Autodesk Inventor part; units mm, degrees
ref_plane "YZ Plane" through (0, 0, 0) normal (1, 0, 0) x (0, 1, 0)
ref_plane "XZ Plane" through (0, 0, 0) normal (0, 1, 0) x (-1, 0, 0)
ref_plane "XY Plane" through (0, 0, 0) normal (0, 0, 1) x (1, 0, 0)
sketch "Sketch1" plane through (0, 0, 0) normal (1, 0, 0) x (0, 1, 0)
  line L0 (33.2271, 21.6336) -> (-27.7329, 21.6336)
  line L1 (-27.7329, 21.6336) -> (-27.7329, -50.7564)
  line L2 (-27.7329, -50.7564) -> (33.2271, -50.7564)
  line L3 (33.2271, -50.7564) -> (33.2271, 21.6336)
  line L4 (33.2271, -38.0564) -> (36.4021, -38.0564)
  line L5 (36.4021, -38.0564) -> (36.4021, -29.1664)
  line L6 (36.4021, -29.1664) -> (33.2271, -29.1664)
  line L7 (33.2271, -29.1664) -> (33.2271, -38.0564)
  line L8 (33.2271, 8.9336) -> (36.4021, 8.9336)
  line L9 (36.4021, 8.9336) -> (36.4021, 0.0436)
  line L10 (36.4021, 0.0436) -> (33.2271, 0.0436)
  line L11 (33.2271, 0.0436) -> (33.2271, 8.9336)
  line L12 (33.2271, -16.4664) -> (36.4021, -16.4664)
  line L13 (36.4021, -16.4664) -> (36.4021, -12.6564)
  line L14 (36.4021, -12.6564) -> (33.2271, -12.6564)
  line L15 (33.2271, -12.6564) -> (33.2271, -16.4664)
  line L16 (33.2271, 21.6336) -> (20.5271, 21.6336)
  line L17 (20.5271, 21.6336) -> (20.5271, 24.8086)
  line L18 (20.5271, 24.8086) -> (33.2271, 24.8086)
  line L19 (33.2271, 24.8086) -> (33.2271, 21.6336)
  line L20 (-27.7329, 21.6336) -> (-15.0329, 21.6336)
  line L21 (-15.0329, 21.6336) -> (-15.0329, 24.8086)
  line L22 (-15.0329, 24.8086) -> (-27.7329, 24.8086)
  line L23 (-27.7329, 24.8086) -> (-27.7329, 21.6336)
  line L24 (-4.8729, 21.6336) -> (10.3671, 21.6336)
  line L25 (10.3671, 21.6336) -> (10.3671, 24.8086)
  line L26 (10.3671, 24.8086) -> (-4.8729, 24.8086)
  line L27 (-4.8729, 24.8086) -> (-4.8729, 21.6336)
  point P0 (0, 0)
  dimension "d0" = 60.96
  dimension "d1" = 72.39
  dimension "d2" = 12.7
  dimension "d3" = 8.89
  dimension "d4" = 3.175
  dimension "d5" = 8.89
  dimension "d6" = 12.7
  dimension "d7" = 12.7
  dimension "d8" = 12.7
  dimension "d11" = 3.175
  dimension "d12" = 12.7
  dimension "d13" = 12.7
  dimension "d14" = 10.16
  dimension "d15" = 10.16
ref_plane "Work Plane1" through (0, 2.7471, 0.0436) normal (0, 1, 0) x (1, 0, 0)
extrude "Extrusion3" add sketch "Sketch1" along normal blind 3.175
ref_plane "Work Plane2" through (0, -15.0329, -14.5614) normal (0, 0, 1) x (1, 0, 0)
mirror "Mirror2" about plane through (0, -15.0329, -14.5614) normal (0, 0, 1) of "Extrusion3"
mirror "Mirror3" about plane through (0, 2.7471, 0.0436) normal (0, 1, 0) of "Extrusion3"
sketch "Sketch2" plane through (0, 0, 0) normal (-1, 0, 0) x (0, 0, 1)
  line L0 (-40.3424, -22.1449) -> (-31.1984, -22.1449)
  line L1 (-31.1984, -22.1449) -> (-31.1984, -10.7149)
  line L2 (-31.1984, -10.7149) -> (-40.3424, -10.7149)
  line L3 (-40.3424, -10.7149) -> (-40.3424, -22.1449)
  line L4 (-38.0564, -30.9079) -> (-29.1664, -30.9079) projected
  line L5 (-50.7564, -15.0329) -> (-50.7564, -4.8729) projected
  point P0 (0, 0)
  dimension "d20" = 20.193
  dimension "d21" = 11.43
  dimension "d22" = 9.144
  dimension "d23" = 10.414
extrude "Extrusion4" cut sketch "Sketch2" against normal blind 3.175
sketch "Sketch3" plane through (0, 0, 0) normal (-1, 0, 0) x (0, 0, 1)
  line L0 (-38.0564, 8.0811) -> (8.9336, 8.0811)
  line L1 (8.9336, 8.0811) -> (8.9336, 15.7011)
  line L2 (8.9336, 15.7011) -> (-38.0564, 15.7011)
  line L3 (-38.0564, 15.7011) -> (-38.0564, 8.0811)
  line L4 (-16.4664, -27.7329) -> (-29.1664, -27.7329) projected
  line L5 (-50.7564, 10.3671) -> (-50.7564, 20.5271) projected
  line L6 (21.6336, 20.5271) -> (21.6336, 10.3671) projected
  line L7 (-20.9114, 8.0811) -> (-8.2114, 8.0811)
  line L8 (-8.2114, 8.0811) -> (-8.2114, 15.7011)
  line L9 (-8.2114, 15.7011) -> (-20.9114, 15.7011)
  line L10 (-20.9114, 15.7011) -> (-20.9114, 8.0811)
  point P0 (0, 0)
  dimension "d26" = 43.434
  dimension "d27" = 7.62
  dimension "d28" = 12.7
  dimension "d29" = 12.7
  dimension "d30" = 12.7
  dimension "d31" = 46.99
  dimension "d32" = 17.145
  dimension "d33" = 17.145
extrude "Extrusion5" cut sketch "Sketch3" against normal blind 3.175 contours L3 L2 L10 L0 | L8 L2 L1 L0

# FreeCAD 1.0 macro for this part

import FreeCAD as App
import Part
import Sketcher
from FreeCAD import Vector
Q = App.Units.Quantity


def add_polygon(sketch, points):
    """Adds a closed chain of lines whose ends are joined by coincident constraints."""
    first, n = sketch.GeometryCount, len(points)
    for a, b in zip(points, points[1:] + points[:1]):
        sketch.addGeometry(Part.LineSegment(App.Vector(*a, 0), App.Vector(*b, 0)), False)
    for i in range(n):
        sketch.addConstraint(Sketcher.Constraint("Coincident", first + i, 2, first + (i + 1) % n, 1))

doc = App.newDocument("Part")
body = doc.addObject("PartDesign::Body", "Body")

# Sketch on YZ plane
sketch1 = doc.addObject("Sketcher::SketchObject", "Sketch")
body.addObject(sketch1)
sketch1.AttachmentSupport = (doc.YZ_Plane, [""])
sketch1.MapMode = "FlatFace"
add_polygon(sketch1, [(33.2, 8.9), (33.2, 24.8), (20.5, 24.8), (20.5, 21.6), (10.4, 21.6), (10.4, 24.8), (-4.9, 24.8), (-4.9, 21.6), (-15, 21.6), (-15, 24.8), (-27.7, 24.8), (-27.7, -50.8), (33.2, -50.8), (33.2, -38.1), (36.4, -38.1), (36.4, -29.2), (33.2, -29.2), (33.2, -16.5), (36.4, -16.5), (36.4, -12.7), (33.2, -12.7), (33.2, 0), (36.4, 0), (36.4, 8.9)])  # lines 0-23
sketch1.addConstraint(Sketcher.Constraint("Vertical", 0))
sketch1.addConstraint(Sketcher.Constraint("Horizontal", 1))
sketch1.addConstraint(Sketcher.Constraint("Vertical", 2))
sketch1.addConstraint(Sketcher.Constraint("Horizontal", 3))
sketch1.addConstraint(Sketcher.Constraint("Vertical", 4))
sketch1.addConstraint(Sketcher.Constraint("Horizontal", 5))
sketch1.addConstraint(Sketcher.Constraint("Vertical", 6))
sketch1.addConstraint(Sketcher.Constraint("Horizontal", 7))
sketch1.addConstraint(Sketcher.Constraint("Vertical", 8))
sketch1.addConstraint(Sketcher.Constraint("Horizontal", 9))
sketch1.addConstraint(Sketcher.Constraint("Vertical", 10))
sketch1.addConstraint(Sketcher.Constraint("Horizontal", 11))
sketch1.addConstraint(Sketcher.Constraint("Vertical", 12))
sketch1.addConstraint(Sketcher.Constraint("Horizontal", 13))
sketch1.addConstraint(Sketcher.Constraint("Vertical", 14))
sketch1.addConstraint(Sketcher.Constraint("Horizontal", 15))
sketch1.addConstraint(Sketcher.Constraint("Vertical", 16))
sketch1.addConstraint(Sketcher.Constraint("Horizontal", 17))
sketch1.addConstraint(Sketcher.Constraint("Vertical", 18))
sketch1.addConstraint(Sketcher.Constraint("Horizontal", 19))
sketch1.addConstraint(Sketcher.Constraint("Vertical", 20))
sketch1.addConstraint(Sketcher.Constraint("Horizontal", 21))
sketch1.addConstraint(Sketcher.Constraint("Vertical", 22))
sketch1.addConstraint(Sketcher.Constraint("Horizontal", 23))
sketch1.addConstraint(Sketcher.Constraint("Horizontal", 1, 2, 4, 2))
sketch1.addConstraint(Sketcher.Constraint("Horizontal", 3, 2, 6, 2))
sketch1.addConstraint(Sketcher.Constraint("Horizontal", 5, 2, 8, 2))
sketch1.addConstraint(Sketcher.Constraint("Vertical", 0, 2, 11, 2))
sketch1.addConstraint(Sketcher.Constraint("Vertical", 12, 2, 15, 2))
sketch1.addConstraint(Sketcher.Constraint("Vertical", 14, 2, 17, 2))
sketch1.addConstraint(Sketcher.Constraint("Vertical", 16, 2, 19, 2))
sketch1.addConstraint(Sketcher.Constraint("Vertical", 18, 2, 21, 2))
sketch1.addConstraint(Sketcher.Constraint("Equal", 3, 7))
sketch1.addConstraint(Sketcher.Constraint("Equal", 1, 9))
sketch1.addConstraint(Sketcher.Constraint("Equal", 23, 2))
sketch1.addConstraint(Sketcher.Constraint("Equal", 9, 12))
sketch1.addConstraint(Sketcher.Constraint("Equal", 12, 16))
sketch1.addConstraint(Sketcher.Constraint("Equal", 16, 20))
sketch1.addConstraint(Sketcher.Constraint("Equal", 14, 22))
sketch1.addConstraint(Sketcher.Constraint("DistanceX", 1, 2, 1, 1, Q("0.5 in")))
sketch1.addConstraint(Sketcher.Constraint("DistanceX", 3, 2, 3, 1, Q("0.4 in")))
sketch1.addConstraint(Sketcher.Constraint("DistanceX", 11, 1, 11, 2, Q("2.4 in")))
sketch1.addConstraint(Sketcher.Constraint("DistanceY", 14, 1, 14, 2, Q("0.35 in")))
sketch1.addConstraint(Sketcher.Constraint("DistanceY", 22, 2, 2, 2, Q("0.5 in")))
sketch1.addConstraint(Sketcher.Constraint("DistanceX", 13, 1, 13, 2, Q("0.125 in")))
sketch1.addConstraint(Sketcher.Constraint("DistanceY", 10, 2, 7, 2, Q("2.85 in")))
sketch1.addConstraint(Sketcher.Constraint("DistanceX", -1, 1, 0, 2, Q("33.227 mm")))
sketch1.addConstraint(Sketcher.Constraint("DistanceY", -1, 1, 0, 2, Q("24.8086 mm")))
pad1 = doc.addObject("PartDesign::Pad", "Pad")
body.addObject(pad1)
pad1.Profile = sketch1
pad1.Length = Q("0.125 in")
doc.recompute()

datumplane = doc.addObject("PartDesign::Plane", "DatumPlane")
body.addObject(datumplane)
datumplane.AttachmentSupport = (doc.XY_Plane, [""])
datumplane.MapMode = "FlatFace"
datumplane.AttachmentOffset = App.Placement(Vector(0, 0, -14.5614), App.Rotation())
mirrored = doc.addObject("PartDesign::Mirrored", "Mirrored")
body.addObject(mirrored)
mirrored.Originals = [pad1]
mirrored.MirrorPlane = (datumplane, [""])
body.Tip = mirrored
doc.recompute()

datumplane2 = doc.addObject("PartDesign::Plane", "DatumPlane001")
body.addObject(datumplane2)
datumplane2.AttachmentSupport = (doc.XZ_Plane, [""])
datumplane2.MapMode = "FlatFace"
datumplane2.AttachmentOffset = App.Placement(Vector(0, 0, -2.7471), App.Rotation())
mirrored2 = doc.addObject("PartDesign::Mirrored", "Mirrored001")
body.addObject(mirrored2)
mirrored2.Originals = [pad1]
mirrored2.MirrorPlane = (datumplane2, [""])
body.Tip = mirrored2

# Sketch on YZ plane
sketch2 = doc.addObject("Sketcher::SketchObject", "Sketch001")
body.addObject(sketch2)
sketch2.AttachmentSupport = (doc.YZ_Plane, [""])
sketch2.MapMode = "FlatFace"
add_polygon(sketch2, [(-11, -40), (-22, -40), (-22, -31), (-11, -31)])  # lines 0-3
sketch2.addConstraint(Sketcher.Constraint("Horizontal", 0))
sketch2.addConstraint(Sketcher.Constraint("Vertical", 1))
sketch2.addConstraint(Sketcher.Constraint("Horizontal", 2))
sketch2.addConstraint(Sketcher.Constraint("Vertical", 3))
sketch2.addConstraint(Sketcher.Constraint("DistanceX", 0, 2, 0, 1, Q("0.45 in")))
sketch2.addConstraint(Sketcher.Constraint("DistanceY", 1, 1, 1, 2, Q("0.36 in")))
sketch2.addConstraint(Sketcher.Constraint("DistanceX", 0, 2, -1, 1, Q("22.145 mm")))
sketch2.addConstraint(Sketcher.Constraint("DistanceY", 0, 2, -1, 1, Q("40.3424 mm")))
pocket1 = doc.addObject("PartDesign::Pocket", "Pocket")
body.addObject(pocket1)
pocket1.Profile = sketch2
pocket1.Length = Q("0.125 in")
pocket1.Reversed = True

# Sketch on YZ plane
sketch3 = doc.addObject("Sketcher::SketchObject", "Sketch002")
body.addObject(sketch3)
sketch3.AttachmentSupport = (doc.YZ_Plane, [""])
sketch3.MapMode = "FlatFace"
add_polygon(sketch3, [(16, -38), (8, -38), (8, -21), (16, -21)])  # lines 0-3
add_polygon(sketch3, [(16, -8), (8, -8), (8, 9), (16, 9)])  # lines 4-7
sketch3.addConstraint(Sketcher.Constraint("Horizontal", 0))
sketch3.addConstraint(Sketcher.Constraint("Vertical", 1))
sketch3.addConstraint(Sketcher.Constraint("Horizontal", 2))
sketch3.addConstraint(Sketcher.Constraint("Vertical", 3))
sketch3.addConstraint(Sketcher.Constraint("Horizontal", 4))
sketch3.addConstraint(Sketcher.Constraint("Vertical", 5))
sketch3.addConstraint(Sketcher.Constraint("Horizontal", 6))
sketch3.addConstraint(Sketcher.Constraint("Vertical", 7))
sketch3.addConstraint(Sketcher.Constraint("Vertical", 1, 2, 4, 2))
sketch3.addConstraint(Sketcher.Constraint("Vertical", 3, 2, 6, 2))
sketch3.addConstraint(Sketcher.Constraint("Equal", 3, 5))
sketch3.addConstraint(Sketcher.Constraint("DistanceX", 0, 2, 0, 1, Q("0.3 in")))
sketch3.addConstraint(Sketcher.Constraint("DistanceY", 1, 2, 4, 2, Q("0.5 in")))
sketch3.addConstraint(Sketcher.Constraint("DistanceY", 1, 1, 1, 2, Q("0.675 in")))
sketch3.addConstraint(Sketcher.Constraint("DistanceX", -1, 1, 0, 2, Q("8.081 mm")))
sketch3.addConstraint(Sketcher.Constraint("DistanceY", 0, 2, -1, 1, Q("38.0564 mm")))
pocket2 = doc.addObject("PartDesign::Pocket", "Pocket001")
body.addObject(pocket2)
pocket2.Profile = sketch3
pocket2.Length = Q("0.125 in")
pocket2.Reversed = True

doc.recompute()
